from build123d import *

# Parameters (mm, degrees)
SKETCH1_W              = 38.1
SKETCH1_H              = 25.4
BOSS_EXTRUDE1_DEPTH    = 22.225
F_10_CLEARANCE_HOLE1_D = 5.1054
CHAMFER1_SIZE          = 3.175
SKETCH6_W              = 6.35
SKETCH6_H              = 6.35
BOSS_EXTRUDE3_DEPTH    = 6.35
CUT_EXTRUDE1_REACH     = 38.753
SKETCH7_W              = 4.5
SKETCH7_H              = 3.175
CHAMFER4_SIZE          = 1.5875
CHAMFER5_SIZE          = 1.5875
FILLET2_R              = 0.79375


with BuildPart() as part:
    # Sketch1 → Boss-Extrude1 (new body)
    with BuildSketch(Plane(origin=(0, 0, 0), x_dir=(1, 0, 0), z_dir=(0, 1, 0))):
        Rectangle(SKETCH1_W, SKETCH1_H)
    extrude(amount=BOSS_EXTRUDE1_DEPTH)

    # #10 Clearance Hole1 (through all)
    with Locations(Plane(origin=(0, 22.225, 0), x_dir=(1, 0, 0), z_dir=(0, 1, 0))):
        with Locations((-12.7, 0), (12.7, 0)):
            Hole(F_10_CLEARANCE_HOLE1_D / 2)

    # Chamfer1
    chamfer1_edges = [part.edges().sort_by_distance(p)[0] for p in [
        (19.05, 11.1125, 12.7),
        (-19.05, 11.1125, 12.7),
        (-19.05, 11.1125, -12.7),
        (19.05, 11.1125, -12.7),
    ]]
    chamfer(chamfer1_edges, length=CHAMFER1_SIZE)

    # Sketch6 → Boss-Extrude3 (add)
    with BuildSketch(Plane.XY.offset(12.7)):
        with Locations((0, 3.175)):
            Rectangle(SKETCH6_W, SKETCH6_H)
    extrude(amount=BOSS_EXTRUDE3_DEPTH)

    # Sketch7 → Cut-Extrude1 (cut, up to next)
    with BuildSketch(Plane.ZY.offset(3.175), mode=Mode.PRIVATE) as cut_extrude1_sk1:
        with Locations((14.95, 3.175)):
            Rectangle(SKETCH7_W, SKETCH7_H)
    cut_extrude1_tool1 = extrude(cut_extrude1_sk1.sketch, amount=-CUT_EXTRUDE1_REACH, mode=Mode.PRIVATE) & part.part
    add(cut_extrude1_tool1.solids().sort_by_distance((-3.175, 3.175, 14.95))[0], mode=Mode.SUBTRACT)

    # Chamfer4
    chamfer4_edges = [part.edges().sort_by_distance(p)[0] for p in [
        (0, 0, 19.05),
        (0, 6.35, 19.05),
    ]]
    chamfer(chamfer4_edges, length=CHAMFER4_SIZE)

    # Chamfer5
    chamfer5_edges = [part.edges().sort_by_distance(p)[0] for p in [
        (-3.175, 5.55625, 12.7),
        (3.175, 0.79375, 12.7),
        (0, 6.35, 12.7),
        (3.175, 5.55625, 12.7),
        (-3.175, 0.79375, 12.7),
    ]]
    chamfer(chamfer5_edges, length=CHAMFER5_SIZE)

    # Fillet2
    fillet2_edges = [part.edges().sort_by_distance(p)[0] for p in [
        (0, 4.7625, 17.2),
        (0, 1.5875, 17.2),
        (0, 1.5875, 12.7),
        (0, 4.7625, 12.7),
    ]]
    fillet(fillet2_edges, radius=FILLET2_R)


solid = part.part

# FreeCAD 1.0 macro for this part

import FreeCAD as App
import Part
import Sketcher

V = App.Vector
Q = App.Units.Quantity


def edges_at(feature, points):
    """Names of the edges that pass closest to the given points."""
    edges = feature.Shape.Edges
    near = lambda p: min(range(len(edges)), key=lambda i: edges[i].distToShape(Part.Vertex(*p))[0])
    return sorted({f"Edge{near(p) + 1}" for p in points})

doc = App.newDocument("Part")
body = doc.addObject("PartDesign::Body", "Body")

# Sketch on XZ plane
sketch1 = body.newObject("Sketcher::SketchObject", "Sketch")
sketch1.AttachmentSupport = (doc.getObject("XZ_Plane"), [""])
sketch1.MapMode = "FlatFace"
sketch1.addGeometry(Part.LineSegment(V(-19, -13, 0), V(-19, 13, 0)), False)
sketch1.addGeometry(Part.LineSegment(V(-19, 13, 0), V(19, 13, 0)), False)
sketch1.addGeometry(Part.LineSegment(V(19, 13, 0), V(19, -13, 0)), False)
sketch1.addGeometry(Part.LineSegment(V(19, -13, 0), V(-19, -13, 0)), False)
sketch1.addConstraint(Sketcher.Constraint("Coincident", 0, 2, 1, 1))
sketch1.addConstraint(Sketcher.Constraint("Coincident", 1, 2, 2, 1))
sketch1.addConstraint(Sketcher.Constraint("Coincident", 2, 2, 3, 1))
sketch1.addConstraint(Sketcher.Constraint("Coincident", 3, 2, 0, 1))
sketch1.addConstraint(Sketcher.Constraint("Vertical", 0))
sketch1.addConstraint(Sketcher.Constraint("Horizontal", 1))
sketch1.addConstraint(Sketcher.Constraint("Vertical", 2))
sketch1.addConstraint(Sketcher.Constraint("Horizontal", 3))
sketch1.addConstraint(Sketcher.Constraint("Symmetric", 0, 2, 2, 2, -1, 1))
sketch1.addConstraint(Sketcher.Constraint("DistanceY", 0, 1, 0, 2, Q("1 in")))
sketch1.addConstraint(Sketcher.Constraint("DistanceX", 1, 1, 1, 2, Q("1.5 in")))
pad1 = body.newObject("PartDesign::Pad", "Pad")
pad1.Profile = sketch1
pad1.Length = Q("0.875 in")
pad1.Reversed = True

# Sketch on XZ plane
sketch2 = body.newObject("Sketcher::SketchObject", "Sketch001")
sketch2.AttachmentSupport = (doc.getObject("XZ_Plane"), [""])
sketch2.MapMode = "FlatFace"
sketch2.AttachmentOffset = App.Placement(V(0, 0, -0.875 * 25.4), App.Rotation())
sketch2.addGeometry(Part.Circle(V(-12.7, 0, 0), V(0, 0, 1), 2.6), False)
sketch2.addGeometry(Part.Circle(V(12.7, 0, 0), V(0, 0, 1), 2.6), False)
sketch2.addConstraint(Sketcher.Constraint("Equal", 0, 1))
sketch2.addConstraint(Sketcher.Constraint("Symmetric", 0, 3, 1, 3, -1, 1))
sketch2.addConstraint(Sketcher.Constraint("PointOnObject", 0, 3, -1))
sketch2.addConstraint(Sketcher.Constraint("Diameter", 0, Q("0.201 in")))
sketch2.addConstraint(Sketcher.Constraint("DistanceX", 0, 3, 1, 3, Q("1 in")))
doc.recompute()
hole = body.newObject("PartDesign::Hole", "Hole")
hole.Profile = sketch2
hole.ThreadType = "None"
hole.Diameter = Q("0.201 in")
hole.DepthType = "ThroughAll"
hole.Reversed = True
doc.recompute()

chamfer = body.newObject("PartDesign::Chamfer", "Chamfer")
chamfer.Base = (hole, edges_at(hole, [
    (19.05, 11.113, 12.7),
    (-19.05, 11.113, 12.7),
    (-19.05, 11.113, -12.7),
    (19.05, 11.113, -12.7),
]))
chamfer.Size = Q("0.125 in")

# Sketch on XY plane
sketch3 = body.newObject("Sketcher::SketchObject", "Sketch002")
sketch3.AttachmentSupport = (doc.getObject("XY_Plane"), [""])
sketch3.MapMode = "FlatFace"
sketch3.AttachmentOffset = App.Placement(V(0, 0, 0.5 * 25.4), App.Rotation())
sketch3.addGeometry(Part.LineSegment(V(-3, 6, 0), V(-3, 0, 0)), False)
sketch3.addGeometry(Part.LineSegment(V(-3, 0, 0), V(3, 0, 0)), False)
sketch3.addGeometry(Part.LineSegment(V(3, 0, 0), V(3, 6, 0)), False)
sketch3.addGeometry(Part.LineSegment(V(3, 6, 0), V(-3, 6, 0)), False)
sketch3.addConstraint(Sketcher.Constraint("Coincident", 0, 2, 1, 1))
sketch3.addConstraint(Sketcher.Constraint("Coincident", 1, 2, 2, 1))
sketch3.addConstraint(Sketcher.Constraint("Coincident", 2, 2, 3, 1))
sketch3.addConstraint(Sketcher.Constraint("Coincident", 3, 2, 0, 1))
sketch3.addConstraint(Sketcher.Constraint("Vertical", 0))
sketch3.addConstraint(Sketcher.Constraint("Horizontal", 1))
sketch3.addConstraint(Sketcher.Constraint("Vertical", 2))
sketch3.addConstraint(Sketcher.Constraint("Horizontal", 3))
sketch3.addConstraint(Sketcher.Constraint("Symmetric", 0, 2, 1, 2, -1, 1))
sketch3.addConstraint(Sketcher.Constraint("Equal", 3, 0))
sketch3.addConstraint(Sketcher.Constraint("DistanceX", 1, 1, 1, 2, Q("0.25 in")))
pad2 = body.newObject("PartDesign::Pad", "Pad001")
pad2.Profile = sketch3
pad2.Length = Q("0.25 in")

# Sketch on YZ plane
sketch4 = body.newObject("Sketcher::SketchObject", "Sketch003")
sketch4.AttachmentSupport = (doc.getObject("YZ_Plane"), [""])
sketch4.MapMode = "FlatFace"
sketch4.AttachmentOffset = App.Placement(V(0, 0, -0.125 * 25.4), App.Rotation())
sketch4.addGeometry(Part.LineSegment(V(4.8, 12.7, 0), V(1.6, 12.7, 0)), False)
sketch4.addGeometry(Part.LineSegment(V(1.6, 12.7, 0), V(1.6, 17.2, 0)), False)
sketch4.addGeometry(Part.LineSegment(V(1.6, 17.2, 0), V(4.8, 17.2, 0)), False)
sketch4.addGeometry(Part.LineSegment(V(4.8, 17.2, 0), V(4.8, 12.7, 0)), False)
sketch4.addConstraint(Sketcher.Constraint("Coincident", 0, 2, 1, 1))
sketch4.addConstraint(Sketcher.Constraint("Coincident", 1, 2, 2, 1))
sketch4.addConstraint(Sketcher.Constraint("Coincident", 2, 2, 3, 1))
sketch4.addConstraint(Sketcher.Constraint("Coincident", 3, 2, 0, 1))
sketch4.addConstraint(Sketcher.Constraint("Horizontal", 0))
sketch4.addConstraint(Sketcher.Constraint("Vertical", 1))
sketch4.addConstraint(Sketcher.Constraint("Horizontal", 2))
sketch4.addConstraint(Sketcher.Constraint("Vertical", 3))
sketch4.addConstraint(Sketcher.Constraint("DistanceY", -1, 1, 0, 2, Q("0.5 in")))
sketch4.addConstraint(Sketcher.Constraint("DistanceX", 0, 2, 0, 1, Q("0.125 in")))
sketch4.addConstraint(Sketcher.Constraint("DistanceX", -1, 1, 0, 2, Q("0.0625 in")))
sketch4.addConstraint(Sketcher.Constraint("DistanceY", 1, 1, 1, 2, Q("4.5 mm")))
pocket1 = body.newObject("PartDesign::Pocket", "Pocket")
pocket1.Profile = sketch4
pocket1.Type = "UpToFirst"
pocket1.Reversed = True
doc.recompute()

chamfer2 = body.newObject("PartDesign::Chamfer", "Chamfer001")
chamfer2.Base = (pocket1, edges_at(pocket1, [(0, 0, 19.05), (0, 6.35, 19.05)]))
chamfer2.Size = Q("0.0625 in")
doc.recompute()

chamfer3 = body.newObject("PartDesign::Chamfer", "Chamfer002")
chamfer3.Base = (chamfer2, edges_at(chamfer2, [
    (-3.175, 5.556, 12.7),
    (3.175, 0.794, 12.7),
    (0, 6.35, 12.7),
    (3.175, 5.556, 12.7),
    (-3.175, 0.794, 12.7),
]))
chamfer3.Size = Q("0.0625 in")
doc.recompute()

fillet = body.newObject("PartDesign::Fillet", "Fillet")
fillet.Base = (chamfer3, edges_at(chamfer3, [
    (0, 4.763, 17.2),
    (0, 1.587, 17.2),
    (0, 1.587, 12.7),
    (0, 4.763, 12.7),
]))
fillet.Radius = Q("0.03125 in")

doc.recompute()
